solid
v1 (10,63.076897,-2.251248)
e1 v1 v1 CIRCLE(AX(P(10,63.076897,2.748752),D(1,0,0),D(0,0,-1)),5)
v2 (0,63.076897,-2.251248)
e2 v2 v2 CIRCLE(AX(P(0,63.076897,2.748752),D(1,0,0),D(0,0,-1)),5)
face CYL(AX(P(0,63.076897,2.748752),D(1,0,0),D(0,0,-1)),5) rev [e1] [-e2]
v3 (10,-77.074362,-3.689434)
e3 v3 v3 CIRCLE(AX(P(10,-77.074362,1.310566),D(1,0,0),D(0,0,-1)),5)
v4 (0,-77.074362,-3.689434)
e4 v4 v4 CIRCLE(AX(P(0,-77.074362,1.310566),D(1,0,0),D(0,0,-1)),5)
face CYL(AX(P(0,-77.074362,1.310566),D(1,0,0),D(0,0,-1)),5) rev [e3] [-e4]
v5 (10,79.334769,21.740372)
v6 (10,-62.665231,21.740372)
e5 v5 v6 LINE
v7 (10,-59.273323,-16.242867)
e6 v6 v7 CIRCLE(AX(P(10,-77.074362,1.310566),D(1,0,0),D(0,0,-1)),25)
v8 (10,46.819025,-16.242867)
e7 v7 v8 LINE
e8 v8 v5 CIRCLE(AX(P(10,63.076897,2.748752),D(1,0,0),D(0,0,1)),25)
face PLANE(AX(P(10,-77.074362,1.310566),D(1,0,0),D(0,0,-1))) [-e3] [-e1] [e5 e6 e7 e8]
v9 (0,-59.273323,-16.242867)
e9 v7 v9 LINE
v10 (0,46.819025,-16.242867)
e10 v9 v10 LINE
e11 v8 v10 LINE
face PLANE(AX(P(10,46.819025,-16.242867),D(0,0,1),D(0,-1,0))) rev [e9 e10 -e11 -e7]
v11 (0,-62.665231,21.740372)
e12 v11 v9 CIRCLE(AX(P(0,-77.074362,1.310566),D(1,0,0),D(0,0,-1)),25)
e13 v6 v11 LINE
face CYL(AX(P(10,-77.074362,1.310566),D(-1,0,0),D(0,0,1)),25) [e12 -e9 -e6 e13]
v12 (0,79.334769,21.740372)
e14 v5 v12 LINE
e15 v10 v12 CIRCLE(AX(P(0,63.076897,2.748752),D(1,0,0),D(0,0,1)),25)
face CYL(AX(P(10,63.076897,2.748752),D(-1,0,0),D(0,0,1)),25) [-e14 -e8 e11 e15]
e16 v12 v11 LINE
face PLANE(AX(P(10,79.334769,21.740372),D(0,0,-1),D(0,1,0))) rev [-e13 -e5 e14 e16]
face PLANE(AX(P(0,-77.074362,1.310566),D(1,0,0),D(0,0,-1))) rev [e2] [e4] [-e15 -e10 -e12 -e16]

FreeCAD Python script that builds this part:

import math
import FreeCAD as App
import Part
import Sketcher
from FreeCAD import Vector
Q = App.Units.Quantity

doc = App.newDocument("Part")
body = doc.addObject("PartDesign::Body", "Body")

# Sketch on YZ plane
sketch1 = body.newObject("Sketcher::SketchObject", "Sketch")
sketch1.AttachmentSupport = (doc.getObject("YZ_Plane"), [""])
sketch1.MapMode = "FlatFace"
sketch1.addGeometry([
    Part.LineSegment(Vector(79, 22, 0), Vector(-63, 22, 0)),
    Part.ArcOfCircle(Part.Circle(Vector(-77, 1, 0), Vector(0, 0, 1), 25), math.radians(55), math.radians(315)),
    Part.LineSegment(Vector(-59, -16, 0), Vector(47, -16, 0)),
    Part.ArcOfCircle(Part.Circle(Vector(63, 3, 0), Vector(0, 0, 1), 25), math.radians(-131), math.radians(49)),
], False)
sketch1.addConstraint([
    Sketcher.Constraint("Coincident", 0, 2, 1, 1),
    Sketcher.Constraint("Coincident", 1, 2, 2, 1),
    Sketcher.Constraint("Coincident", 2, 2, 3, 1),
    Sketcher.Constraint("Coincident", 3, 2, 0, 1),
    Sketcher.Constraint("Horizontal", 0),
    Sketcher.Constraint("Horizontal", 2),
    Sketcher.Constraint("Equal", 1, 3),
    Sketcher.Constraint("Radius", 1, Q("25 mm")),
    Sketcher.Constraint("DistanceX", 0, 2, 0, 1, Q("142 mm")),
    Sketcher.Constraint("DistanceX", 2, 1, 2, 2, Q("106.092348 mm")),
    Sketcher.Constraint("DistanceX", 0, 2, -1, 1, Q("62.665231 mm")),
    Sketcher.Constraint("DistanceY", -1, 1, 0, 2, Q("21.740372 mm")),
    Sketcher.Constraint("DistanceX", 1, 3, 3, 3, Q("140.151259 mm")),
    Sketcher.Constraint("DistanceX", 1, 3, 0, 2, Q("14.409131 mm")),
])
pad1 = body.newObject("PartDesign::Pad", "Pad")
pad1.Profile = sketch1
pad1.Length = 10

# Sketch on YZ plane
sketch2 = body.newObject("Sketcher::SketchObject", "Sketch001")
sketch2.AttachmentSupport = (doc.getObject("YZ_Plane"), [""])
sketch2.MapMode = "FlatFace"
sketch2.AttachmentOffset = App.Placement(Vector(0, 0, 10), App.Rotation())
sketch2.addGeometry([
    Part.Circle(Vector(63, 3, 0), Vector(0, 0, 1), 5),
    Part.Circle(Vector(-77, 1, 0), Vector(0, 0, 1), 5),
], False)
sketch2.addConstraint([
    Sketcher.Constraint("Equal", 0, 1),
    Sketcher.Constraint("Diameter", 0, Q("10 mm")),
    Sketcher.Constraint("DistanceX", 1, 3, 0, 3, Q("140.151259 mm")),
    Sketcher.Constraint("DistanceX", -1, 1, 0, 3, Q("63.076897 mm")),
    Sketcher.Constraint("DistanceY", -1, 1, 0, 3, Q("2.748752 mm")),
    Sketcher.Constraint("DistanceY", -1, 1, 1, 3, Q("1.310566 mm")),
])
pocket1 = body.newObject("PartDesign::Pocket", "Pocket")
pocket1.Profile = sketch2
pocket1.Length = 10

doc.recompute()
